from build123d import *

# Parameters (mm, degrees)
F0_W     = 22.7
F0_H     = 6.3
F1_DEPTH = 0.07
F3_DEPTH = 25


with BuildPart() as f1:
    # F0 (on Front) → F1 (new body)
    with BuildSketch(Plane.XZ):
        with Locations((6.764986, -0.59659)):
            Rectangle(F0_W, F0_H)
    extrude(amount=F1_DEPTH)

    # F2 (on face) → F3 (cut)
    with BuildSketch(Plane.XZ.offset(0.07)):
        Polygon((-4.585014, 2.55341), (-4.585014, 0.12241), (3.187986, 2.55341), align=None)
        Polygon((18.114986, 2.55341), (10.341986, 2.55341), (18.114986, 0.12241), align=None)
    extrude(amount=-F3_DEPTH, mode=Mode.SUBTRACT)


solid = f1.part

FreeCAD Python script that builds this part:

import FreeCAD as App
import Part
import Sketcher
from FreeCAD import Vector
Q = App.Units.Quantity

doc = App.newDocument("Part")
params = doc.addObject("Spreadsheet::Sheet", "Params")
for row, (alias, value) in enumerate([
    ("sketch1_width", "22.7 mm"),
    ("sketch1_height", "6.3 mm"),
    ("pad1_length", "0.07 mm"),
    ("pocket1_length", "25 mm"),
], start=1):
    params.set(f"A{row}", alias)
    params.set(f"B{row}", "=" + value)
    params.setAlias(f"B{row}", alias)

body = doc.addObject("PartDesign::Body", "Body")

sketch1 = body.newObject("Sketcher::SketchObject", "Sketch")
sketch1.AttachmentSupport = (doc.getObject("XZ_Plane"), [""])
sketch1.MapMode = "FlatFace"
sketch1.addGeometry(Part.LineSegment(Vector(-4.585014, 2.55341, 0), Vector(-4.585014, -3.74659, 0)), False)
sketch1.addGeometry(Part.LineSegment(Vector(-4.585014, -3.74659, 0), Vector(18.114986, -3.74659, 0)), False)
sketch1.addGeometry(Part.LineSegment(Vector(18.114986, -3.74659, 0), Vector(18.114986, 2.55341, 0)), False)
sketch1.addGeometry(Part.LineSegment(Vector(18.114986, 2.55341, 0), Vector(-4.585014, 2.55341, 0)), False)
sketch1.addConstraint(Sketcher.Constraint("Coincident", 0, 2, 1, 1))
sketch1.addConstraint(Sketcher.Constraint("Coincident", 1, 2, 2, 1))
sketch1.addConstraint(Sketcher.Constraint("Coincident", 2, 2, 3, 1))
sketch1.addConstraint(Sketcher.Constraint("Coincident", 3, 2, 0, 1))
sketch1.addConstraint(Sketcher.Constraint("Vertical", 0))
sketch1.addConstraint(Sketcher.Constraint("Horizontal", 1))
sketch1.addConstraint(Sketcher.Constraint("Vertical", 2))
sketch1.addConstraint(Sketcher.Constraint("Horizontal", 3))
sketch1.addConstraint(Sketcher.Constraint("DistanceX", 1, 1, 1, 2, Q("22.7 mm")))
sketch1.addConstraint(Sketcher.Constraint("DistanceY", 0, 2, 0, 1, Q("6.3 mm")))
sketch1.addConstraint(Sketcher.Constraint("DistanceY", 0, 2, -1, 1, Q("3.74659 mm")))
sketch1.addConstraint(Sketcher.Constraint("DistanceX", 0, 2, -1, 1, Q("4.585014 mm")))
sketch1.setExpression("Constraints[8]", "Params.sketch1_width")
sketch1.setExpression("Constraints[9]", "Params.sketch1_height")
pad1 = body.newObject("PartDesign::Pad", "Pad")
pad1.Profile = sketch1
pad1.setExpression("Length", "Params.pad1_length")

sketch2 = body.newObject("Sketcher::SketchObject", "Sketch001")
sketch2.AttachmentSupport = (doc.getObject("XZ_Plane"), [""])
sketch2.MapMode = "FlatFace"
sketch2.AttachmentOffset = App.Placement(Vector(0, 0, 0.07), App.Rotation())
sketch2.addGeometry(Part.LineSegment(Vector(-4.585014, 2.55341, 0), Vector(-4.585014, 0.12241, 0)), False)
sketch2.addGeometry(Part.LineSegment(Vector(-4.585014, 0.12241, 0), Vector(3.187986, 2.55341, 0)), False)
sketch2.addGeometry(Part.LineSegment(Vector(3.187986, 2.55341, 0), Vector(-4.585014, 2.55341, 0)), False)
sketch2.addGeometry(Part.LineSegment(Vector(18.114986, 2.55341, 0), Vector(10.341986, 2.55341, 0)), False)
sketch2.addGeometry(Part.LineSegment(Vector(10.341986, 2.55341, 0), Vector(18.114986, 0.12241, 0)), False)
sketch2.addGeometry(Part.LineSegment(Vector(18.114986, 0.12241, 0), Vector(18.114986, 2.55341, 0)), False)
sketch2.addConstraint(Sketcher.Constraint("Coincident", 0, 2, 1, 1))
sketch2.addConstraint(Sketcher.Constraint("Coincident", 1, 2, 2, 1))
sketch2.addConstraint(Sketcher.Constraint("Coincident", 2, 2, 0, 1))
sketch2.addConstraint(Sketcher.Constraint("Coincident", 3, 2, 4, 1))
sketch2.addConstraint(Sketcher.Constraint("Coincident", 4, 2, 5, 1))
sketch2.addConstraint(Sketcher.Constraint("Coincident", 5, 2, 3, 1))
sketch2.addConstraint(Sketcher.Constraint("Vertical", 0))
sketch2.addConstraint(Sketcher.Constraint("Horizontal", 2))
sketch2.addConstraint(Sketcher.Constraint("Horizontal", 3))
sketch2.addConstraint(Sketcher.Constraint("Vertical", 5))
sketch2.addConstraint(Sketcher.Constraint("Horizontal", 2, 2, 3, 2))
sketch2.addConstraint(Sketcher.Constraint("Horizontal", 0, 2, 4, 2))
sketch2.addConstraint(Sketcher.Constraint("Equal", 2, 3))
sketch2.addConstraint(Sketcher.Constraint("DistanceX", 0, 2, 4, 2, Q("22.7 mm")))
sketch2.addConstraint(Sketcher.Constraint("DistanceX", 2, 2, 2, 1, Q("7.773 mm")))
sketch2.addConstraint(Sketcher.Constraint("DistanceY", 0, 2, 0, 1, Q("2.431 mm")))
sketch2.addConstraint(Sketcher.Constraint("DistanceY", -1, 1, 0, 2, Q("0.12241 mm")))
sketch2.addConstraint(Sketcher.Constraint("DistanceX", 0, 2, -1, 1, Q("4.585014 mm")))
pocket1 = body.newObject("PartDesign::Pocket", "Pocket")
pocket1.Profile = sketch2
pocket1.setExpression("Length", "Params.pocket1_length")

doc.recompute()
